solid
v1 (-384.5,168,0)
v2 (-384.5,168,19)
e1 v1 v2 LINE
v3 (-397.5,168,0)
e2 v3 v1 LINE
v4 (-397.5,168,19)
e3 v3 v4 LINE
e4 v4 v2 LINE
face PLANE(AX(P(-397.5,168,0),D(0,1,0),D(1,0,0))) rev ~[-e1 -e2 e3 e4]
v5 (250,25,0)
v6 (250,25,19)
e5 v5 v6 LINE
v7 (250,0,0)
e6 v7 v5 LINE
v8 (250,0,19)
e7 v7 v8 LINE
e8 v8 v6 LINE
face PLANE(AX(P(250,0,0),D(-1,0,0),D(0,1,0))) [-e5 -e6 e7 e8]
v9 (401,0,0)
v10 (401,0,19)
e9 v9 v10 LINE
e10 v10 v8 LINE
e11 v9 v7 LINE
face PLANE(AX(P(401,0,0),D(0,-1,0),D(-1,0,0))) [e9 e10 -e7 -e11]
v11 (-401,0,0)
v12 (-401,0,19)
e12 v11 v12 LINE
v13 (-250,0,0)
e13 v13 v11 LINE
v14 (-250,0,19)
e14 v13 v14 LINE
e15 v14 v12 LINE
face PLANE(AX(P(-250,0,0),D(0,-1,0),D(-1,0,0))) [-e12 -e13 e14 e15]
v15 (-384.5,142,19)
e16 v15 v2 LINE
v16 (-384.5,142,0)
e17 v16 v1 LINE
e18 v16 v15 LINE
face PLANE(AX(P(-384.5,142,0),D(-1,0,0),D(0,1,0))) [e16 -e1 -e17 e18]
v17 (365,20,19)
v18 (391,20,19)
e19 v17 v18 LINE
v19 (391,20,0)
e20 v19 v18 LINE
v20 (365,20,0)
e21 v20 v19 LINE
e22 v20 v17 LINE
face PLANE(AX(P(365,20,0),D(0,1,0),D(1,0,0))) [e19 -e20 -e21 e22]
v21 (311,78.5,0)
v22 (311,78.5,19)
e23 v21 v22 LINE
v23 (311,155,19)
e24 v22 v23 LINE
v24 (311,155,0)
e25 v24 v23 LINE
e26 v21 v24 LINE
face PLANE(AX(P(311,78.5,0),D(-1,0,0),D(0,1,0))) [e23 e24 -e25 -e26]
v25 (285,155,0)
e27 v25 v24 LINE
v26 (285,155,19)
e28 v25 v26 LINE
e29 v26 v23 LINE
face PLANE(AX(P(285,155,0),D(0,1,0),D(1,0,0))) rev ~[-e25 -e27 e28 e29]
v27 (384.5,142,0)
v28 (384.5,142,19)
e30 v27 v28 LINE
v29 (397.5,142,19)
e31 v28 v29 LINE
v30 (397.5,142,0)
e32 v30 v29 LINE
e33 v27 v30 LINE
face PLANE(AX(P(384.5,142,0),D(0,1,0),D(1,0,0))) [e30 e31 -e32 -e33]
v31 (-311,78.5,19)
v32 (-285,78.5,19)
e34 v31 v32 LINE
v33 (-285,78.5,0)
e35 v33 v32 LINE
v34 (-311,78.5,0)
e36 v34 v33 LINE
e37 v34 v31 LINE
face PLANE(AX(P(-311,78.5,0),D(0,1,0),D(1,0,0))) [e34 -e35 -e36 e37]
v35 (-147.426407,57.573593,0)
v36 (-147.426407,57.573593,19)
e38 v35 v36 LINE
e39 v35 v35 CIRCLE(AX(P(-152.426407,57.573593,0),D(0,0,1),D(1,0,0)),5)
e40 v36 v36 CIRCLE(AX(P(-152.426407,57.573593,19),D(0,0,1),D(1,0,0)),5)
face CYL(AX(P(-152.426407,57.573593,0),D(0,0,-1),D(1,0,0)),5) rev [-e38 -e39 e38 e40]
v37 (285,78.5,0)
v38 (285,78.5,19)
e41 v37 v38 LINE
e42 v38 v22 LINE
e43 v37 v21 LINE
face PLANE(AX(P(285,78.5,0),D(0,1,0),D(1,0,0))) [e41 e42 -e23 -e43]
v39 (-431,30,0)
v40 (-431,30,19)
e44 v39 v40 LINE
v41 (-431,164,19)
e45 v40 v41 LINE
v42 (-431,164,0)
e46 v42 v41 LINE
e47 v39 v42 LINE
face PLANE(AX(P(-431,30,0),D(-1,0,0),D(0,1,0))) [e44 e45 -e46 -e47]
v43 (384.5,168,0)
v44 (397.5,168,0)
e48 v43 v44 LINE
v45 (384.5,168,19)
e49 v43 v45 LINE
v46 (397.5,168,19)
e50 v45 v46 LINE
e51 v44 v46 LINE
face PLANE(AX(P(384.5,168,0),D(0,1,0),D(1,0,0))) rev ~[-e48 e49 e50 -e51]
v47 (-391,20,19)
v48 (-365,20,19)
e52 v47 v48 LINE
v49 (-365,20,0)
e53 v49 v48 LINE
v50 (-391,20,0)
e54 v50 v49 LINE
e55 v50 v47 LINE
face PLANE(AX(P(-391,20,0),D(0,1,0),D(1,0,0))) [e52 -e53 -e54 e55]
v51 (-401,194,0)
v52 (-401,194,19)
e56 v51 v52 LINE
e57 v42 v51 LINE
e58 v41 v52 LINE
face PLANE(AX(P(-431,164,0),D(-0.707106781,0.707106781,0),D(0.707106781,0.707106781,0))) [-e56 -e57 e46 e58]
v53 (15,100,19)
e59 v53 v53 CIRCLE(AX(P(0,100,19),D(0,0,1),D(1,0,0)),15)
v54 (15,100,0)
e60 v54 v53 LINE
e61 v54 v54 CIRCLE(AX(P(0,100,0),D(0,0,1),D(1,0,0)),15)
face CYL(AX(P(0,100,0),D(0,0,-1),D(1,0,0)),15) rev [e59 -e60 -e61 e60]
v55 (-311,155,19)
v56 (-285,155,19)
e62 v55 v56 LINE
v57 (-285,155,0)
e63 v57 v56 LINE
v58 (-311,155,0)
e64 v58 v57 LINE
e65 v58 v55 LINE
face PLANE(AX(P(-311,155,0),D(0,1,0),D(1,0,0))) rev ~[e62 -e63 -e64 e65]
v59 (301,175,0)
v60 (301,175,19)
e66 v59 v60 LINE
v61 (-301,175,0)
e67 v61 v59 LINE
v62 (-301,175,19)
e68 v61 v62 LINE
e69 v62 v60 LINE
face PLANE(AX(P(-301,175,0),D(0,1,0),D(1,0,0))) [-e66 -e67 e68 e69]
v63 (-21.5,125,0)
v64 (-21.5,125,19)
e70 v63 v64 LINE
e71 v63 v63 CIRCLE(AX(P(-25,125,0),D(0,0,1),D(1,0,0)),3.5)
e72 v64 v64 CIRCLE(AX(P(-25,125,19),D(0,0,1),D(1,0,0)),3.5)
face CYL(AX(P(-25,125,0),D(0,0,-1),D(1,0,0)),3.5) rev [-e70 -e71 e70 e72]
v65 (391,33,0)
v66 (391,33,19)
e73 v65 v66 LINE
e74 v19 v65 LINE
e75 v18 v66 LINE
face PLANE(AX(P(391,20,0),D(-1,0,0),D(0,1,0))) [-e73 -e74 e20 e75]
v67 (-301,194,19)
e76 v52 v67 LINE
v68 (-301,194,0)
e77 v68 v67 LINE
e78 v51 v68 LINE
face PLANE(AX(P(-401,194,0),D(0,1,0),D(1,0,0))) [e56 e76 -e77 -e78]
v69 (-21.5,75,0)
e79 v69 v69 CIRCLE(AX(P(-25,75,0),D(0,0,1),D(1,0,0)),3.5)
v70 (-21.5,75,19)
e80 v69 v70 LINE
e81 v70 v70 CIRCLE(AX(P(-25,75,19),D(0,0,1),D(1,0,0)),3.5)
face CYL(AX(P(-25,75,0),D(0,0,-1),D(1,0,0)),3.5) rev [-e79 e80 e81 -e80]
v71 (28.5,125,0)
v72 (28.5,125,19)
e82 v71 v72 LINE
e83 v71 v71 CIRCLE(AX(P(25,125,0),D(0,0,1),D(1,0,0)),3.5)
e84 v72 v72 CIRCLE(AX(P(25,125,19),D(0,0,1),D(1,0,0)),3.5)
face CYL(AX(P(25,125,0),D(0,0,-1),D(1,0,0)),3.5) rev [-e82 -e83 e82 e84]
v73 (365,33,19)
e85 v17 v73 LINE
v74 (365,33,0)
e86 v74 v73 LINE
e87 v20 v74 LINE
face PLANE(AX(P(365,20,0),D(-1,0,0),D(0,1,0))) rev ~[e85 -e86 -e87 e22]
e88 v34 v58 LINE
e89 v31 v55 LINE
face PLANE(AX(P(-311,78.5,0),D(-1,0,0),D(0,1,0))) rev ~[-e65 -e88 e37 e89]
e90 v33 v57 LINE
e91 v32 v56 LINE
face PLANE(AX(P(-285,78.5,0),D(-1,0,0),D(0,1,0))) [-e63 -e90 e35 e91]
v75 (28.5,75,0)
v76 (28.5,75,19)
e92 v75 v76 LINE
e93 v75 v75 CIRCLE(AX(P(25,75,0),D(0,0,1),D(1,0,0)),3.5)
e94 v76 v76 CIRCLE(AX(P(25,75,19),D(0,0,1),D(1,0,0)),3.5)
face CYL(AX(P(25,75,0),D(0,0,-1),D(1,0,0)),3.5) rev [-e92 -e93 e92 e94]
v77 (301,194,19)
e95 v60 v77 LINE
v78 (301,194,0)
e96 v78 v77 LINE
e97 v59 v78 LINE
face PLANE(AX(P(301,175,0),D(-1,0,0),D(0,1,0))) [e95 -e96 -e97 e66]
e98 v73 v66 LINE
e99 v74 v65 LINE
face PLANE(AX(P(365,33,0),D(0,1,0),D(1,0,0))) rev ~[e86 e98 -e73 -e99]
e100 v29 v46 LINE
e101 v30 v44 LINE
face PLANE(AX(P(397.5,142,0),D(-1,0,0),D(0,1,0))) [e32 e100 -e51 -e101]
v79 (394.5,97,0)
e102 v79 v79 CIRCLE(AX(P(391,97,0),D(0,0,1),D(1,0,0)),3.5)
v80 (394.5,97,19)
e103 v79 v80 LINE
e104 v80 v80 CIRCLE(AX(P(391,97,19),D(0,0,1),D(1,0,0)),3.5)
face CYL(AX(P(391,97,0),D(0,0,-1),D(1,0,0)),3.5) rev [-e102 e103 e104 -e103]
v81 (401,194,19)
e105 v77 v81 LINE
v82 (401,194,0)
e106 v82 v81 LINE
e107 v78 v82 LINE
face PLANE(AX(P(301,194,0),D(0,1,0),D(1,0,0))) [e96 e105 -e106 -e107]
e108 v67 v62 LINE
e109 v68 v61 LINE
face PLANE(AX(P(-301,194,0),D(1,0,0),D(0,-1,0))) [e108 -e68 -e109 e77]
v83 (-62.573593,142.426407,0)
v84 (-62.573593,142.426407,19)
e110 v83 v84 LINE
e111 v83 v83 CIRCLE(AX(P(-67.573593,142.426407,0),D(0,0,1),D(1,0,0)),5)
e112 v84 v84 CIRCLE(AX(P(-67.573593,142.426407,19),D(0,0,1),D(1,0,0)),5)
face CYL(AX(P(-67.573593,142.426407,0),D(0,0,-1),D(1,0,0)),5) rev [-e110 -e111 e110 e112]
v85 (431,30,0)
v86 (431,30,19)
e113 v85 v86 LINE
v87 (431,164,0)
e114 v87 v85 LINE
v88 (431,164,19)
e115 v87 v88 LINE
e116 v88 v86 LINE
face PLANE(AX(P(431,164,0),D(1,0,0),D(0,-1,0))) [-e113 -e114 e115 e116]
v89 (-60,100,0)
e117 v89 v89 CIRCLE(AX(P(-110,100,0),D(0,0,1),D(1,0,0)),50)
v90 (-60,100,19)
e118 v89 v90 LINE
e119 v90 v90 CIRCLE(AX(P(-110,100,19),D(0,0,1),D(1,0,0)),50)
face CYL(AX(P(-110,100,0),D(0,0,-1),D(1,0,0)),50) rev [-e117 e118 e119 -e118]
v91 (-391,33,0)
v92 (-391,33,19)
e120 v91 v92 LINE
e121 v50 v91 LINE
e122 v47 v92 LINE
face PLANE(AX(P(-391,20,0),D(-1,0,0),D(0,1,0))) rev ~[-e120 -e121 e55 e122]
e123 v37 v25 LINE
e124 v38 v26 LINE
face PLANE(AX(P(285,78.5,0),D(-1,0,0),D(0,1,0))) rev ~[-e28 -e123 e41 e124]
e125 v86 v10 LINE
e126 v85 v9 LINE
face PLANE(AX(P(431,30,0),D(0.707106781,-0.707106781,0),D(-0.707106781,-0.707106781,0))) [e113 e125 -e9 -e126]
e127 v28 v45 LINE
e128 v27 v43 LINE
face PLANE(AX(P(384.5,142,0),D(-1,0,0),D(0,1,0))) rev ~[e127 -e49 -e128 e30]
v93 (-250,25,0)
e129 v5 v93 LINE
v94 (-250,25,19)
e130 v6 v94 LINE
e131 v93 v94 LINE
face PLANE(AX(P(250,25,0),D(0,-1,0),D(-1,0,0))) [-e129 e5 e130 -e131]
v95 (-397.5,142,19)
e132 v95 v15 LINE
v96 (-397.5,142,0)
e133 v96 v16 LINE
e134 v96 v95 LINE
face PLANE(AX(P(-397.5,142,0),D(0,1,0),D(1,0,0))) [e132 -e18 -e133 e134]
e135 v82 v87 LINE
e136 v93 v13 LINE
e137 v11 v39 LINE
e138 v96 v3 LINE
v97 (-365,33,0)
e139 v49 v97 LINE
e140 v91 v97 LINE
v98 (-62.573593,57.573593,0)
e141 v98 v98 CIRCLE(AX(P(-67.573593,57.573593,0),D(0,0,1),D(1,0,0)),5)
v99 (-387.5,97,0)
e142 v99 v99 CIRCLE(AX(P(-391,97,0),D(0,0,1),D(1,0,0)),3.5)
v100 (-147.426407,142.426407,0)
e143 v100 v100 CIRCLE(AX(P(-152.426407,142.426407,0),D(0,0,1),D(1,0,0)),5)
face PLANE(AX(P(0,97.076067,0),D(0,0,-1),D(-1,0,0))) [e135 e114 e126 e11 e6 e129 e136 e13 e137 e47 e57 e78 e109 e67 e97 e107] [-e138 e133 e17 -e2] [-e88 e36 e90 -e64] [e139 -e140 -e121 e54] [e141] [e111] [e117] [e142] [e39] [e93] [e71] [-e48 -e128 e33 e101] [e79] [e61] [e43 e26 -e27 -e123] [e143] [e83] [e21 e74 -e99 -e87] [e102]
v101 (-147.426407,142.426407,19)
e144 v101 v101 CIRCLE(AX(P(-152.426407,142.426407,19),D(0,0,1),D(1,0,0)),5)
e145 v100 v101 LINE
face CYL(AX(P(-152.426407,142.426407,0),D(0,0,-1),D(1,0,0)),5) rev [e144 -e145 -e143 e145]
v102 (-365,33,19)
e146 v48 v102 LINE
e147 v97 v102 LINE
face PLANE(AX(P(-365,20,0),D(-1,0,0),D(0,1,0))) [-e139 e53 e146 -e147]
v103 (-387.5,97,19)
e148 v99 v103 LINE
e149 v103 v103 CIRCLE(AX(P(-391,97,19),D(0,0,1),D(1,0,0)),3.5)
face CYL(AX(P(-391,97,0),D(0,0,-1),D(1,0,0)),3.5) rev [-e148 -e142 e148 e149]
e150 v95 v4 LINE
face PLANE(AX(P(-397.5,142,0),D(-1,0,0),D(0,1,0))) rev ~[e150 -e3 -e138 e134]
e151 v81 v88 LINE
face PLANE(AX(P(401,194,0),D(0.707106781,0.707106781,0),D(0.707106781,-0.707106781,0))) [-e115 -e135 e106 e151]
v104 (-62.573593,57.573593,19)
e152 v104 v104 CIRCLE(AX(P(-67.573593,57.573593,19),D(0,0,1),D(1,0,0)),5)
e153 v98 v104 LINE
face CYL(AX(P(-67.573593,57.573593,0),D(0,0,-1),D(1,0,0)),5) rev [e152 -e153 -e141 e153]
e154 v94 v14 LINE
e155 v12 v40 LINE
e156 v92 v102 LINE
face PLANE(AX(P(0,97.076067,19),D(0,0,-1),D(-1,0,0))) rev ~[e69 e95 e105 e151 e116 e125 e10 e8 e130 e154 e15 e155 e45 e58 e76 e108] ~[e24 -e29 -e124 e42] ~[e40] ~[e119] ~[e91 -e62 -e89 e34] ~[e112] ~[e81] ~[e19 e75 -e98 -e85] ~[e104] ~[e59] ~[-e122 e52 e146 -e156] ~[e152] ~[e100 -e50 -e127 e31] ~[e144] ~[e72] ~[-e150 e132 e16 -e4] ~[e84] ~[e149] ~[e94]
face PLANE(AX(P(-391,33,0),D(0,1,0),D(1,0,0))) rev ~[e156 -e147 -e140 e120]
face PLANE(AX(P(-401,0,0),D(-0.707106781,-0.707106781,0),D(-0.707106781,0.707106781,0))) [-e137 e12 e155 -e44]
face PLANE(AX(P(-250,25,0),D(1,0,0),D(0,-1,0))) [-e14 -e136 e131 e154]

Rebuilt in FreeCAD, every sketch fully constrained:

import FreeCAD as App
import Part
import Sketcher
Q = App.Units.Quantity


def add_polygon(sketch, points):
    """Adds a closed chain of lines whose ends are joined by coincident constraints."""
    first, n = sketch.GeometryCount, len(points)
    for a, b in zip(points, points[1:] + points[:1]):
        sketch.addGeometry(Part.LineSegment(App.Vector(*a, 0), App.Vector(*b, 0)), False)
    for i in range(n):
        sketch.addConstraint(Sketcher.Constraint("Coincident", first + i, 2, first + (i + 1) % n, 1))

doc = App.newDocument("Part")
params = doc.addObject("Spreadsheet::Sheet", "Params")
for row, (alias, value) in enumerate([
    ("sketch1_diameter", "7 mm"),
    ("sketch1_diameter2", "10 mm"),
    ("sketch1_diameter3", "30 mm"),
    ("sketch1_diameter4", "100 mm"),
    ("sketch1_width", "100 mm"),
    ("pad1_length", "19 mm"),
], start=1):
    params.set(f"A{row}", alias)
    params.set(f"B{row}", "=" + value)
    params.setAlias(f"B{row}", alias)

body = doc.addObject("PartDesign::Body", "Body")

sketch1 = body.newObject("Sketcher::SketchObject", "Sketch")
sketch1.AttachmentSupport = (doc.getObject("XY_Plane"), [""])
sketch1.MapMode = "FlatFace"
add_polygon(sketch1, [(-301, 175), (-301, 194), (-401, 194), (-431, 164), (-431, 30), (-401, 0), (-250, 0), (-250, 25), (250, 25), (250, 0), (401, 0), (431, 30), (431, 164), (401, 194), (301, 194), (301, 175)])
add_polygon(sketch1, [(365, 20), (365, 33), (391, 33), (391, 20)])
sketch1.addGeometry(Part.Circle(App.Vector(25, 75, 0), App.Vector(0, 0, 1), 3.5), False)
add_polygon(sketch1, [(-391, 20), (-391, 33), (-365, 33), (-365, 20)])
sketch1.addGeometry(Part.Circle(App.Vector(-67.6, 57.6, 0), App.Vector(0, 0, 1), 5), False)
sketch1.addGeometry(Part.Circle(App.Vector(-25, 75, 0), App.Vector(0, 0, 1), 3.5), False)
sketch1.addGeometry(Part.Circle(App.Vector(-152.4, 57.6, 0), App.Vector(0, 0, 1), 5), False)
sketch1.addGeometry(Part.Circle(App.Vector(391, 97, 0), App.Vector(0, 0, 1), 3.5), False)
add_polygon(sketch1, [(285, 78.5), (285, 155), (311, 155), (311, 78.5)])
sketch1.addGeometry(Part.Circle(App.Vector(25, 125, 0), App.Vector(0, 0, 1), 3.5), False)
add_polygon(sketch1, [(384.5, 142), (384.5, 168), (397.5, 168), (397.5, 142)])
sketch1.addGeometry(Part.Circle(App.Vector(0, 100, 0), App.Vector(0, 0, 1), 15), False)
sketch1.addGeometry(Part.Circle(App.Vector(-110, 100, 0), App.Vector(0, 0, 1), 50), False)
sketch1.addGeometry(Part.Circle(App.Vector(-25, 125, 0), App.Vector(0, 0, 1), 3.5), False)
sketch1.addGeometry(Part.Circle(App.Vector(-391, 97, 0), App.Vector(0, 0, 1), 3.5), False)
add_polygon(sketch1, [(-311, 78.5), (-311, 155), (-285, 155), (-285, 78.5)])
sketch1.addGeometry(Part.Circle(App.Vector(-67.6, 142.4, 0), App.Vector(0, 0, 1), 5), False)
sketch1.addGeometry(Part.Circle(App.Vector(-152.4, 142.4, 0), App.Vector(0, 0, 1), 5), False)
add_polygon(sketch1, [(-397.5, 142), (-397.5, 168), (-384.5, 168), (-384.5, 142)])
sketch1.addConstraint([
    Sketcher.Constraint("Vertical", 0),
    Sketcher.Constraint("Horizontal", 1),
    Sketcher.Constraint("Vertical", 3),
    Sketcher.Constraint("Horizontal", 5),
    Sketcher.Constraint("Vertical", 6),
    Sketcher.Constraint("Horizontal", 7),
    Sketcher.Constraint("Vertical", 8),
    Sketcher.Constraint("Horizontal", 9),
    Sketcher.Constraint("Vertical", 11),
    Sketcher.Constraint("Horizontal", 13),
    Sketcher.Constraint("Vertical", 14),
    Sketcher.Constraint("Horizontal", 15),
    Sketcher.Constraint("Vertical", 16),
    Sketcher.Constraint("Horizontal", 17),
    Sketcher.Constraint("Vertical", 18),
    Sketcher.Constraint("Horizontal", 19),
    Sketcher.Constraint("Vertical", 21),
    Sketcher.Constraint("Horizontal", 22),
    Sketcher.Constraint("Vertical", 23),
    Sketcher.Constraint("Horizontal", 24),
    Sketcher.Constraint("Vertical", 29),
    Sketcher.Constraint("Horizontal", 30),
    Sketcher.Constraint("Vertical", 31),
    Sketcher.Constraint("Horizontal", 32),
    Sketcher.Constraint("Vertical", 34),
    Sketcher.Constraint("Horizontal", 35),
    Sketcher.Constraint("Vertical", 36),
    Sketcher.Constraint("Horizontal", 37),
    Sketcher.Constraint("Vertical", 42),
    Sketcher.Constraint("Horizontal", 43),
    Sketcher.Constraint("Vertical", 44),
    Sketcher.Constraint("Horizontal", 45),
    Sketcher.Constraint("Vertical", 48),
    Sketcher.Constraint("Horizontal", 49),
    Sketcher.Constraint("Vertical", 50),
    Sketcher.Constraint("Horizontal", 51),
    Sketcher.Constraint("Equal", 20, 26),
    Sketcher.Constraint("Equal", 25, 27),
    Sketcher.Constraint("Equal", 26, 28),
    Sketcher.Constraint("Equal", 28, 33),
    Sketcher.Constraint("Equal", 33, 40),
    Sketcher.Constraint("Equal", 40, 41),
    Sketcher.Constraint("Equal", 27, 46),
    Sketcher.Constraint("Equal", 46, 47),
    Sketcher.Constraint("Symmetric", 5, 2, 8, 2, -1, 1),
    Sketcher.Constraint("Symmetric", 20, 3, 26, 3, -2),
    Sketcher.Constraint("Symmetric", 33, 3, 40, 3, -2),
    Sketcher.Constraint("Symmetric", 28, 3, 41, 3, -2),
    Sketcher.Constraint("Symmetric", 4, 2, 9, 2, -2),
    Sketcher.Constraint("Symmetric", 3, 2, 10, 2, -2),
    Sketcher.Constraint("Symmetric", 1, 2, 12, 2, -2),
    Sketcher.Constraint("Symmetric", 17, 2, 21, 2, -2),
    Sketcher.Constraint("Symmetric", 19, 2, 23, 2, -2),
    Sketcher.Constraint("Symmetric", 30, 2, 42, 2, -2),
    Sketcher.Constraint("Symmetric", 32, 2, 44, 2, -2),
    Sketcher.Constraint("Symmetric", 35, 2, 48, 2, -2),
    Sketcher.Constraint("Symmetric", 37, 2, 50, 2, -2),
    Sketcher.Constraint("PointOnObject", 38, 3, -2),
    Sketcher.Constraint("Perpendicular", 2, 4),
    Sketcher.Constraint("Perpendicular", 4, 10),
    Sketcher.Constraint("Perpendicular", 10, 12),
    Sketcher.Constraint("Horizontal", 25, 3, 27, 3),
    Sketcher.Constraint("Horizontal", 38, 3, 39, 3),
    Sketcher.Constraint("Horizontal", 46, 3, 47, 3),
    Sketcher.Constraint("Vertical", 20, 3, 33, 3),
    Sketcher.Constraint("Vertical", 25, 3, 46, 3),
    Sketcher.Constraint("Vertical", 27, 3, 47, 3),
    Sketcher.Constraint("Vertical", 1, 2, 4, 2),
    Sketcher.Constraint("Vertical", 28, 3, 17, 2),
    Sketcher.Constraint("Equal", 1, 13),
    Sketcher.Constraint("Equal", 24, 30),
    Sketcher.Constraint("Equal", 51, 16),
    Sketcher.Constraint("Equal", 45, 34),
    Sketcher.Constraint("Diameter", 20, Q("7 mm")),
    Sketcher.Constraint("Diameter", 25, Q("10 mm")),
    Sketcher.Constraint("Diameter", 38, Q("30 mm")),
    Sketcher.Constraint("Diameter", 39, Q("100 mm")),
    Sketcher.Constraint("DistanceX", 1, 2, 1, 1, Q("100 mm")),
    Sketcher.Constraint("DistanceX", 5, 1, 5, 2, Q("151 mm")),
    Sketcher.Constraint("DistanceX", 7, 1, 7, 2, Q("500 mm")),
    Sketcher.Constraint("DistanceX", 17, 1, 17, 2, Q("26 mm")),
    Sketcher.Constraint("DistanceX", 35, 1, 35, 2, Q("13 mm")),
    Sketcher.Constraint("DistanceY", 0, 1, 0, 2, Q("19 mm")),
    Sketcher.Constraint("DistanceY", 3, 2, 3, 1, Q("134 mm")),
    Sketcher.Constraint("DistanceY", 6, 1, 6, 2, Q("25 mm")),
    Sketcher.Constraint("DistanceY", 29, 1, 29, 2, Q("76.5 mm")),
    Sketcher.Constraint("DistanceX", -1, 1, 20, 3, Q("25 mm")),
    Sketcher.Constraint("DistanceY", -1, 1, 20, 3, Q("75 mm")),
    Sketcher.Constraint("DistanceX", -1, 1, 28, 3, Q("391 mm")),
    Sketcher.Constraint("DistanceY", -1, 1, 28, 3, Q("97 mm")),
    Sketcher.Constraint("DistanceY", -1, 1, 33, 3, Q("125 mm")),
    Sketcher.Constraint("DistanceY", -1, 1, 38, 3, Q("100 mm")),
    Sketcher.Constraint("DistanceX", 39, 3, -1, 1, Q("110 mm")),
    Sketcher.Constraint("DistanceY", -1, 1, 0, 2, Q("194 mm")),
    Sketcher.Constraint("DistanceY", -1, 1, 16, 2, Q("33 mm")),
    Sketcher.Constraint("DistanceX", -1, 1, 29, 2, Q("285 mm")),
    Sketcher.Constraint("DistanceY", -1, 1, 29, 2, Q("155 mm")),
    Sketcher.Constraint("DistanceY", -1, 1, 34, 2, Q("168 mm")),
    Sketcher.Constraint("DistanceX", -1, 1, 34, 2, Q("384.5 mm")),
    Sketcher.Constraint("DistanceX", 25, 3, -1, 1, Q("67.573593 mm")),
    Sketcher.Constraint("DistanceY", -1, 1, 25, 3, Q("57.573593 mm")),
    Sketcher.Constraint("DistanceX", 27, 3, -1, 1, Q("152.426407 mm")),
    Sketcher.Constraint("DistanceY", -1, 1, 46, 3, Q("142.426407 mm")),
])
sketch1.setExpression("Constraints[113]", "Params.sketch1_diameter")
sketch1.setExpression("Constraints[114]", "Params.sketch1_diameter2")
sketch1.setExpression("Constraints[115]", "Params.sketch1_diameter3")
sketch1.setExpression("Constraints[116]", "Params.sketch1_diameter4")
sketch1.setExpression("Constraints[117]", "Params.sketch1_width")
pad1 = body.newObject("PartDesign::Pad", "Pad")
pad1.Profile = sketch1
pad1.setExpression("Length", "Params.pad1_length")

doc.recompute()
